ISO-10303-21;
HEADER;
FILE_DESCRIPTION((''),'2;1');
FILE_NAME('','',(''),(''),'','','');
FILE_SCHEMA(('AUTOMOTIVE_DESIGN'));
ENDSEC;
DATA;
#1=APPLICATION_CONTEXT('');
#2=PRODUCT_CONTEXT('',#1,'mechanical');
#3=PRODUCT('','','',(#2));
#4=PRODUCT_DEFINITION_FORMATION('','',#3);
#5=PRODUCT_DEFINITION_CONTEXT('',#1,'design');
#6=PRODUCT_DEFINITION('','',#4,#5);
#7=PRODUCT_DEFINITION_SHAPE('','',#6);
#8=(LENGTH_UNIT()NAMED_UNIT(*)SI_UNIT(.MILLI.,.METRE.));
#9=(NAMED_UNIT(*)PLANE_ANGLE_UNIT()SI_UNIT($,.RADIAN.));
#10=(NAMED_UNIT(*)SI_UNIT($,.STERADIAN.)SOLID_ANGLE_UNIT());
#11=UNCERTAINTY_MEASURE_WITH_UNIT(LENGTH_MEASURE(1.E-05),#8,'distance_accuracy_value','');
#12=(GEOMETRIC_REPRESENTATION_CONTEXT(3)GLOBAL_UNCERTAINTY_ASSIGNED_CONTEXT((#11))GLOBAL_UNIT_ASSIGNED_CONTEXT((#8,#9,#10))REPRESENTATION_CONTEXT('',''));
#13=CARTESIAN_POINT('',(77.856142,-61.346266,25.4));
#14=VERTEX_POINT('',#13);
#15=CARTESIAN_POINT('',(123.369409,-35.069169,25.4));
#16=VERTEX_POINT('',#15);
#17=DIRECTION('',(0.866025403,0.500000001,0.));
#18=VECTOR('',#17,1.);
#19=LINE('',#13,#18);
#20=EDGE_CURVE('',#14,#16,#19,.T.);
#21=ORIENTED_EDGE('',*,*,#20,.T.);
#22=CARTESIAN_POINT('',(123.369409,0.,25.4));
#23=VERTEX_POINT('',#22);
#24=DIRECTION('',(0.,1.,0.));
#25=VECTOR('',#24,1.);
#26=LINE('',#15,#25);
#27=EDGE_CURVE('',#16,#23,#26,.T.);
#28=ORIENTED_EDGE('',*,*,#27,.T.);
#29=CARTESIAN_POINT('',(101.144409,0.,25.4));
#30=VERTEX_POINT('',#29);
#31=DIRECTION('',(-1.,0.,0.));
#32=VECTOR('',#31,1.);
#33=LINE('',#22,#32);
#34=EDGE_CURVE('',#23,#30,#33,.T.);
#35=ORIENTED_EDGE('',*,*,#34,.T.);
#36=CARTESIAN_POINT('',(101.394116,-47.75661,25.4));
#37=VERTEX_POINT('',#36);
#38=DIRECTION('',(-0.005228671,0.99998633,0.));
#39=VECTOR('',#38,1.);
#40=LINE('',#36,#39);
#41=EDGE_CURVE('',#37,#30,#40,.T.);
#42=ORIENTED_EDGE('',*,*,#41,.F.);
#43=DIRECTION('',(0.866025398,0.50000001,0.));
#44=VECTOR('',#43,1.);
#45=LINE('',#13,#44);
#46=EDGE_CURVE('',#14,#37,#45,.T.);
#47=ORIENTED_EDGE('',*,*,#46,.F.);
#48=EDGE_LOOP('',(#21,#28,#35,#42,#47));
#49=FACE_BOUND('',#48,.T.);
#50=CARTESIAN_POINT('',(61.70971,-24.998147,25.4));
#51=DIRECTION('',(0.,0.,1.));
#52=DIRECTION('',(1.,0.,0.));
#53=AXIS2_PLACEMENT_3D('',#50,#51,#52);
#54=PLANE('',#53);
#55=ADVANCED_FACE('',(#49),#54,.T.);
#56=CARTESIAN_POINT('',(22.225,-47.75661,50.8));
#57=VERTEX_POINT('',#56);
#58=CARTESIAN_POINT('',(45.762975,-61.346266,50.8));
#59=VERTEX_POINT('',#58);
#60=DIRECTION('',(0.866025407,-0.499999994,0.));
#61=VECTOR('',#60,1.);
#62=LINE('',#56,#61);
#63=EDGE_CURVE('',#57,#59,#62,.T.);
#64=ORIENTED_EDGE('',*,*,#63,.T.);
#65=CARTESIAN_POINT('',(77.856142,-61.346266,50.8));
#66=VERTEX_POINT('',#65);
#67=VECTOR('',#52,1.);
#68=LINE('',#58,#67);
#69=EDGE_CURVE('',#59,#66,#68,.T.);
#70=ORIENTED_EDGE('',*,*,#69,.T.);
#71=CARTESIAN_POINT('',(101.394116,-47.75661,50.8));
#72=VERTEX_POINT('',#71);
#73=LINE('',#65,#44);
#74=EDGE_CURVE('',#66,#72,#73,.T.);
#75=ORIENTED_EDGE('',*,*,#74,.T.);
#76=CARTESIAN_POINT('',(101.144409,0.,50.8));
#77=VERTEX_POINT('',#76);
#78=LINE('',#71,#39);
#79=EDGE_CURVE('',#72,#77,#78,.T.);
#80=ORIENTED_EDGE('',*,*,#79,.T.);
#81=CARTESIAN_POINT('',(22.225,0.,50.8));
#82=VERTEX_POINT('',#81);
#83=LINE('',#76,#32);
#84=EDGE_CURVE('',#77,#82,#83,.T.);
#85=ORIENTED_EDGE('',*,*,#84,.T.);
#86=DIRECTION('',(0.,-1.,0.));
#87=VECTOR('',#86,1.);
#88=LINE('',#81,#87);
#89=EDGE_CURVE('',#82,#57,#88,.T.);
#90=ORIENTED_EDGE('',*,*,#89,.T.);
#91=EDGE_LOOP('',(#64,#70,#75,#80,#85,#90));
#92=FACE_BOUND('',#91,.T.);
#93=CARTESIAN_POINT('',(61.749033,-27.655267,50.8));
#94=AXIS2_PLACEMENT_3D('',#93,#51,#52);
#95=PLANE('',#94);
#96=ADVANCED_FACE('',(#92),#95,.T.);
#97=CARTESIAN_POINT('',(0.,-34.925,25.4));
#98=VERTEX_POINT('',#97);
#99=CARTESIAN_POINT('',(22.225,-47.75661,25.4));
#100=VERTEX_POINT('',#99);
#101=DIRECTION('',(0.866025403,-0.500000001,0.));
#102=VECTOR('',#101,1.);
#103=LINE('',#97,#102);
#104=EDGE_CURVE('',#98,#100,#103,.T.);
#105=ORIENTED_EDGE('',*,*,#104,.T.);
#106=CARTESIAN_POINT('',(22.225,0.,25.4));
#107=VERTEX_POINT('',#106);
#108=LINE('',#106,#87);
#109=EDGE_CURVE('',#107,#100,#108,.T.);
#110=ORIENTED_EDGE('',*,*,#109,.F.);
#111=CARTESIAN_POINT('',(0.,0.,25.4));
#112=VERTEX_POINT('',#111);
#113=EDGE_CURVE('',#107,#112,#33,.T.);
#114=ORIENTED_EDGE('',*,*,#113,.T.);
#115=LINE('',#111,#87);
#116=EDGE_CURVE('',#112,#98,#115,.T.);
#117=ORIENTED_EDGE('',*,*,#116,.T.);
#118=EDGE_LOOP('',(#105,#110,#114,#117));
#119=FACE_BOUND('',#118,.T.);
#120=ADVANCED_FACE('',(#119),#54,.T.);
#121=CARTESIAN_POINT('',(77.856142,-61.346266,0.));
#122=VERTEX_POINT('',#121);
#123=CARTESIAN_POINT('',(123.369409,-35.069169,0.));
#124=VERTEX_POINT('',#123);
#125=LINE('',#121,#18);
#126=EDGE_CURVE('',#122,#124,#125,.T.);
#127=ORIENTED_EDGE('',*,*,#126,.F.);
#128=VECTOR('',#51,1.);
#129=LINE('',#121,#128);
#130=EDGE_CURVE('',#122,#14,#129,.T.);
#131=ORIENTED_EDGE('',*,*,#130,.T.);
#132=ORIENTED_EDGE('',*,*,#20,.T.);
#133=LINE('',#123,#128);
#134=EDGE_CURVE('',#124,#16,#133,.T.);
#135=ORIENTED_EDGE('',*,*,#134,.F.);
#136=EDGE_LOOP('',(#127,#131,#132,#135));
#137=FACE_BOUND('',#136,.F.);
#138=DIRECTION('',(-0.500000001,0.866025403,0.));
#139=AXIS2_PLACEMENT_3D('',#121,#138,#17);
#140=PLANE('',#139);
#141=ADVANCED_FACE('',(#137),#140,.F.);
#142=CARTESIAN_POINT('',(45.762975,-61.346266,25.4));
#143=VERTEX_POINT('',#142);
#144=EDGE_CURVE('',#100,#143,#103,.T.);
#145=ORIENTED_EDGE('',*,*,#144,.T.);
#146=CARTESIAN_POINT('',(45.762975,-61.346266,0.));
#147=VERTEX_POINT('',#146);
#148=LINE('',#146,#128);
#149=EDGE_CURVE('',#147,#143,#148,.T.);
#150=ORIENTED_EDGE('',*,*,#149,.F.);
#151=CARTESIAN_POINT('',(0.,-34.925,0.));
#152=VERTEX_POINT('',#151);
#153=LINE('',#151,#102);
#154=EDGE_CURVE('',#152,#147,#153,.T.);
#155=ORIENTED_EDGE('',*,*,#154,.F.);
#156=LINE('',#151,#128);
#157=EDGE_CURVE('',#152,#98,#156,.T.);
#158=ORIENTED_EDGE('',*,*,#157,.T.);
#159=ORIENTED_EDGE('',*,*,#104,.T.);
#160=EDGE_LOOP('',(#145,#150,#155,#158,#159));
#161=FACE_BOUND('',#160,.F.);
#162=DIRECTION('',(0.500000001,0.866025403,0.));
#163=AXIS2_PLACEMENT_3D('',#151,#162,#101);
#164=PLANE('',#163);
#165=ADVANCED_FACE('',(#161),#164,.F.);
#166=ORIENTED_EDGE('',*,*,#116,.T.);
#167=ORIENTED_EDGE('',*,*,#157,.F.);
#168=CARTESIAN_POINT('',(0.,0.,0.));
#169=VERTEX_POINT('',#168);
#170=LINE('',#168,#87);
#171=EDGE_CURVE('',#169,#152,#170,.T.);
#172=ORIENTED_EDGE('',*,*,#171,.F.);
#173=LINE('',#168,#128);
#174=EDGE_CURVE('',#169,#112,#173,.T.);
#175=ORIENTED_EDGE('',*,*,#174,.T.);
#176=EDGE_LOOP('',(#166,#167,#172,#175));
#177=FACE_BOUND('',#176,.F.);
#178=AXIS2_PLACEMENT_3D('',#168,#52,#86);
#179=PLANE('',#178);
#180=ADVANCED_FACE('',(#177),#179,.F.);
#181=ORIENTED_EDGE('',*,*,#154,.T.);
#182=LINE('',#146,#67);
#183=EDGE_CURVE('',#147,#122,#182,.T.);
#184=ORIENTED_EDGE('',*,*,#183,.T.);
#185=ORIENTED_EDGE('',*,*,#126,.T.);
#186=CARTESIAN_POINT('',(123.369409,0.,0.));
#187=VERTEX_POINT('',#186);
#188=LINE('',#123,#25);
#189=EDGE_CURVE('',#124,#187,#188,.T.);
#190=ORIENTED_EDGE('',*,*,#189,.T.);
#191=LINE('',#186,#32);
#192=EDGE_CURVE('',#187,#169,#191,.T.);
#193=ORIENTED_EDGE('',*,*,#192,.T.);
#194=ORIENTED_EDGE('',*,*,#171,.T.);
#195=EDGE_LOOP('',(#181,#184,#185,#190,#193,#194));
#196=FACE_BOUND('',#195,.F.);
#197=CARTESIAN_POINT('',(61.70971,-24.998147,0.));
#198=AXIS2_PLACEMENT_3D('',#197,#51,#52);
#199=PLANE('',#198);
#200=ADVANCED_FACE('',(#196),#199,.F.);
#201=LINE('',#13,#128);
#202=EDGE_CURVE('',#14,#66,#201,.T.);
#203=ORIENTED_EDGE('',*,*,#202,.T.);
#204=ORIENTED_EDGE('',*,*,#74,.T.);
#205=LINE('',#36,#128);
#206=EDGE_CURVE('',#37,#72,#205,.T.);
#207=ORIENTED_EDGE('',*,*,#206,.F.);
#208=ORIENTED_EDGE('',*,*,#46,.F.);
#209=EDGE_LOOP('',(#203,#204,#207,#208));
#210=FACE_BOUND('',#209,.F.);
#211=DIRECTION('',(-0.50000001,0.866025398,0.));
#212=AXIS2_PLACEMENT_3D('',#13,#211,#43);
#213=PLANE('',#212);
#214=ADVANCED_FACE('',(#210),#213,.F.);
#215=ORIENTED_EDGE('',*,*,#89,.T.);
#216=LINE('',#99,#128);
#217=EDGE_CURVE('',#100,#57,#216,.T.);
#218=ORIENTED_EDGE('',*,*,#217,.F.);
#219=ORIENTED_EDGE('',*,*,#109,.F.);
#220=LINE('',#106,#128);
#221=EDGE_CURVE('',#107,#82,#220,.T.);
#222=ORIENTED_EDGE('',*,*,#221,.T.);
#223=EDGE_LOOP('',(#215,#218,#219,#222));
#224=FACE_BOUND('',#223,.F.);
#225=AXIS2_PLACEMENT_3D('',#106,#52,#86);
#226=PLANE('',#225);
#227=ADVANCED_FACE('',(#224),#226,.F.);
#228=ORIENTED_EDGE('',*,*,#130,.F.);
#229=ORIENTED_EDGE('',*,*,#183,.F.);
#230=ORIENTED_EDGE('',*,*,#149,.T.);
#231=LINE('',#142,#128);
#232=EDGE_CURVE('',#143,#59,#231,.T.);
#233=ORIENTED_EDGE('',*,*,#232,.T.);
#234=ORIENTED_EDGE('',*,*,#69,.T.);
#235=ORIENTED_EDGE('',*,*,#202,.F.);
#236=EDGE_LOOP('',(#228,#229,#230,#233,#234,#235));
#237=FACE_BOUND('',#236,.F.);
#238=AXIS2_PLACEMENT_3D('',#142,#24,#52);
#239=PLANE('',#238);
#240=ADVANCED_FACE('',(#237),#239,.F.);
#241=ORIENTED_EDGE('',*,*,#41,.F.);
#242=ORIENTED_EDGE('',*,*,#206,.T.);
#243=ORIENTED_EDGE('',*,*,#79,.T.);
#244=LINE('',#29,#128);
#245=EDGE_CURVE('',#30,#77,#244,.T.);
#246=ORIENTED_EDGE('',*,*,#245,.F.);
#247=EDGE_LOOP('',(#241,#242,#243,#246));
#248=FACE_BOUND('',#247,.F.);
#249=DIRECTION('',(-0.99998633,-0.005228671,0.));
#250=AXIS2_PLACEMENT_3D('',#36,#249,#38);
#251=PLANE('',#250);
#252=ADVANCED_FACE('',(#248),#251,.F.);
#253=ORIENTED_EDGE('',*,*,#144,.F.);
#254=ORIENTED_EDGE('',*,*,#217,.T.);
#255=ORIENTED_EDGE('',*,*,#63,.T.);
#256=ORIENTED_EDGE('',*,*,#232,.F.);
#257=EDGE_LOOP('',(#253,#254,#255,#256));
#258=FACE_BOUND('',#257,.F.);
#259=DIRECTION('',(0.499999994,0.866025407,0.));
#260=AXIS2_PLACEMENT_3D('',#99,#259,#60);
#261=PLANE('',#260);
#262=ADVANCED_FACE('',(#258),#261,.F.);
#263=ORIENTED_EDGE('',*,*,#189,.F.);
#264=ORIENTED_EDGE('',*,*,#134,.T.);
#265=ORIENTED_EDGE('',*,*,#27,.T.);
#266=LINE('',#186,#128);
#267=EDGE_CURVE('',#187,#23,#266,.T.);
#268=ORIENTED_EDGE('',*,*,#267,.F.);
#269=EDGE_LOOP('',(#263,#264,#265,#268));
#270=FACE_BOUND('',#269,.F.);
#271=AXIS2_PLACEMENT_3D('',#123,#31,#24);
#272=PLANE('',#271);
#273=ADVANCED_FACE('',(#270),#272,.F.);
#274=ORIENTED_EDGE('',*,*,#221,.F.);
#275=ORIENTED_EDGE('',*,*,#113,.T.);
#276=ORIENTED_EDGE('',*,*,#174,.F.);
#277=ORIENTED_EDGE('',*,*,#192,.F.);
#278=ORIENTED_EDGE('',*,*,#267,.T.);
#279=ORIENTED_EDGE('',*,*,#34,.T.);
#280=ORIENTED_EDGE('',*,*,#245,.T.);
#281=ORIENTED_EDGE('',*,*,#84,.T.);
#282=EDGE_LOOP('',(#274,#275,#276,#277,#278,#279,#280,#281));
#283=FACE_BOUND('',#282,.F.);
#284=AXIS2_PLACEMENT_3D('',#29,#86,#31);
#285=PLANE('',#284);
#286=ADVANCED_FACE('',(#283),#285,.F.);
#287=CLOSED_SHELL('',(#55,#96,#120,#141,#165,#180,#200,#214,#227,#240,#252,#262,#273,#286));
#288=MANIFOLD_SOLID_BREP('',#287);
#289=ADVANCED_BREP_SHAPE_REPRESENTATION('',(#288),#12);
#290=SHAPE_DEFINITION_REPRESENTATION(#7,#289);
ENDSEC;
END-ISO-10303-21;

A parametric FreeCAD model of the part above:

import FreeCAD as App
import Part
import Sketcher

V = App.Vector
Q = App.Units.Quantity


def add_polygon(sketch, points):
    """Adds a closed chain of lines whose ends are joined by coincident constraints."""
    first, n = sketch.GeometryCount, len(points)
    for a, b in zip(points, points[1:] + points[:1]):
        sketch.addGeometry(Part.LineSegment(App.Vector(*a, 0), App.Vector(*b, 0)), False)
    for i in range(n):
        sketch.addConstraint(Sketcher.Constraint("Coincident", first + i, 2, first + (i + 1) % n, 1))

doc = App.newDocument("Part")
body = doc.addObject("PartDesign::Body", "Body")

sketch1 = doc.addObject("Sketcher::SketchObject", "Sketch")
body.addObject(sketch1)
sketch1.AttachmentSupport = (doc.XY_Plane, [""])
sketch1.MapMode = "FlatFace"
add_polygon(sketch1, [(0, 0), (0, -35), (46, -61), (78, -61), (123, -35), (123, 0)])
sketch1.addConstraint(Sketcher.Constraint("Vertical", 0))
sketch1.addConstraint(Sketcher.Constraint("Horizontal", 2))
sketch1.addConstraint(Sketcher.Constraint("Vertical", 4))
sketch1.addConstraint(Sketcher.Constraint("Horizontal", 5))
sketch1.addConstraint(Sketcher.Constraint("Coincident", 5, 2, -1, 1))
sketch1.addConstraint(Sketcher.Constraint("Angle", 1, Q("-30 deg")))
sketch1.addConstraint(Sketcher.Constraint("Angle", 3, Q("30 deg")))
sketch1.addConstraint(Sketcher.Constraint("DistanceY", 0, 2, 0, 1, Q("1.375 in")))
sketch1.addConstraint(Sketcher.Constraint("DistanceX", 5, 2, 5, 1, Q("123.369409 mm")))
sketch1.addConstraint(Sketcher.Constraint("DistanceY", 4, 1, 4, 2, Q("35.069169 mm")))
sketch1.addConstraint(Sketcher.Constraint("Distance", 1, Q("52.842532 mm")))
pad1 = doc.addObject("PartDesign::Pad", "Pad")
body.addObject(pad1)
pad1.Profile = sketch1
pad1.Length = Q("1 in")

sketch2 = doc.addObject("Sketcher::SketchObject", "Sketch001")
body.addObject(sketch2)
sketch2.AttachmentSupport = (doc.XY_Plane, [""])
sketch2.MapMode = "FlatFace"
sketch2.AttachmentOffset = App.Placement(V(0, 0, 1 * 25.4), App.Rotation())
add_polygon(sketch2, [(101, 0), (22, 0), (22, -48), (46, -61), (78, -61), (101, -48)])
sketch2.addConstraint(Sketcher.Constraint("Horizontal", 0))
sketch2.addConstraint(Sketcher.Constraint("Vertical", 1))
sketch2.addConstraint(Sketcher.Constraint("Horizontal", 3))
sketch2.addConstraint(Sketcher.Constraint("PointOnObject", 0, 2, -1))
sketch2.addConstraint(Sketcher.Constraint("Horizontal", 1, 2, 4, 2))
sketch2.addConstraint(Sketcher.Constraint("Equal", 2, 4))
sketch2.addConstraint(Sketcher.Constraint("Angle", 2, Q("-30 deg")))
sketch2.addConstraint(Sketcher.Constraint("DistanceX", -1, 1, 0, 2, Q("0.875 in")))
sketch2.addConstraint(Sketcher.Constraint("DistanceX", 0, 2, 0, 1, Q("78.919409 mm")))
sketch2.addConstraint(Sketcher.Constraint("DistanceY", 1, 2, 1, 1, Q("47.75661 mm")))
sketch2.addConstraint(Sketcher.Constraint("Distance", 4, Q("27.179311 mm")))
sketch2.addConstraint(Sketcher.Constraint("DistanceX", 3, 1, 3, 2, Q("32.093167 mm")))
pad2 = doc.addObject("PartDesign::Pad", "Pad001")
body.addObject(pad2)
pad2.Profile = sketch2
pad2.Length = Q("1 in")

doc.recompute()
